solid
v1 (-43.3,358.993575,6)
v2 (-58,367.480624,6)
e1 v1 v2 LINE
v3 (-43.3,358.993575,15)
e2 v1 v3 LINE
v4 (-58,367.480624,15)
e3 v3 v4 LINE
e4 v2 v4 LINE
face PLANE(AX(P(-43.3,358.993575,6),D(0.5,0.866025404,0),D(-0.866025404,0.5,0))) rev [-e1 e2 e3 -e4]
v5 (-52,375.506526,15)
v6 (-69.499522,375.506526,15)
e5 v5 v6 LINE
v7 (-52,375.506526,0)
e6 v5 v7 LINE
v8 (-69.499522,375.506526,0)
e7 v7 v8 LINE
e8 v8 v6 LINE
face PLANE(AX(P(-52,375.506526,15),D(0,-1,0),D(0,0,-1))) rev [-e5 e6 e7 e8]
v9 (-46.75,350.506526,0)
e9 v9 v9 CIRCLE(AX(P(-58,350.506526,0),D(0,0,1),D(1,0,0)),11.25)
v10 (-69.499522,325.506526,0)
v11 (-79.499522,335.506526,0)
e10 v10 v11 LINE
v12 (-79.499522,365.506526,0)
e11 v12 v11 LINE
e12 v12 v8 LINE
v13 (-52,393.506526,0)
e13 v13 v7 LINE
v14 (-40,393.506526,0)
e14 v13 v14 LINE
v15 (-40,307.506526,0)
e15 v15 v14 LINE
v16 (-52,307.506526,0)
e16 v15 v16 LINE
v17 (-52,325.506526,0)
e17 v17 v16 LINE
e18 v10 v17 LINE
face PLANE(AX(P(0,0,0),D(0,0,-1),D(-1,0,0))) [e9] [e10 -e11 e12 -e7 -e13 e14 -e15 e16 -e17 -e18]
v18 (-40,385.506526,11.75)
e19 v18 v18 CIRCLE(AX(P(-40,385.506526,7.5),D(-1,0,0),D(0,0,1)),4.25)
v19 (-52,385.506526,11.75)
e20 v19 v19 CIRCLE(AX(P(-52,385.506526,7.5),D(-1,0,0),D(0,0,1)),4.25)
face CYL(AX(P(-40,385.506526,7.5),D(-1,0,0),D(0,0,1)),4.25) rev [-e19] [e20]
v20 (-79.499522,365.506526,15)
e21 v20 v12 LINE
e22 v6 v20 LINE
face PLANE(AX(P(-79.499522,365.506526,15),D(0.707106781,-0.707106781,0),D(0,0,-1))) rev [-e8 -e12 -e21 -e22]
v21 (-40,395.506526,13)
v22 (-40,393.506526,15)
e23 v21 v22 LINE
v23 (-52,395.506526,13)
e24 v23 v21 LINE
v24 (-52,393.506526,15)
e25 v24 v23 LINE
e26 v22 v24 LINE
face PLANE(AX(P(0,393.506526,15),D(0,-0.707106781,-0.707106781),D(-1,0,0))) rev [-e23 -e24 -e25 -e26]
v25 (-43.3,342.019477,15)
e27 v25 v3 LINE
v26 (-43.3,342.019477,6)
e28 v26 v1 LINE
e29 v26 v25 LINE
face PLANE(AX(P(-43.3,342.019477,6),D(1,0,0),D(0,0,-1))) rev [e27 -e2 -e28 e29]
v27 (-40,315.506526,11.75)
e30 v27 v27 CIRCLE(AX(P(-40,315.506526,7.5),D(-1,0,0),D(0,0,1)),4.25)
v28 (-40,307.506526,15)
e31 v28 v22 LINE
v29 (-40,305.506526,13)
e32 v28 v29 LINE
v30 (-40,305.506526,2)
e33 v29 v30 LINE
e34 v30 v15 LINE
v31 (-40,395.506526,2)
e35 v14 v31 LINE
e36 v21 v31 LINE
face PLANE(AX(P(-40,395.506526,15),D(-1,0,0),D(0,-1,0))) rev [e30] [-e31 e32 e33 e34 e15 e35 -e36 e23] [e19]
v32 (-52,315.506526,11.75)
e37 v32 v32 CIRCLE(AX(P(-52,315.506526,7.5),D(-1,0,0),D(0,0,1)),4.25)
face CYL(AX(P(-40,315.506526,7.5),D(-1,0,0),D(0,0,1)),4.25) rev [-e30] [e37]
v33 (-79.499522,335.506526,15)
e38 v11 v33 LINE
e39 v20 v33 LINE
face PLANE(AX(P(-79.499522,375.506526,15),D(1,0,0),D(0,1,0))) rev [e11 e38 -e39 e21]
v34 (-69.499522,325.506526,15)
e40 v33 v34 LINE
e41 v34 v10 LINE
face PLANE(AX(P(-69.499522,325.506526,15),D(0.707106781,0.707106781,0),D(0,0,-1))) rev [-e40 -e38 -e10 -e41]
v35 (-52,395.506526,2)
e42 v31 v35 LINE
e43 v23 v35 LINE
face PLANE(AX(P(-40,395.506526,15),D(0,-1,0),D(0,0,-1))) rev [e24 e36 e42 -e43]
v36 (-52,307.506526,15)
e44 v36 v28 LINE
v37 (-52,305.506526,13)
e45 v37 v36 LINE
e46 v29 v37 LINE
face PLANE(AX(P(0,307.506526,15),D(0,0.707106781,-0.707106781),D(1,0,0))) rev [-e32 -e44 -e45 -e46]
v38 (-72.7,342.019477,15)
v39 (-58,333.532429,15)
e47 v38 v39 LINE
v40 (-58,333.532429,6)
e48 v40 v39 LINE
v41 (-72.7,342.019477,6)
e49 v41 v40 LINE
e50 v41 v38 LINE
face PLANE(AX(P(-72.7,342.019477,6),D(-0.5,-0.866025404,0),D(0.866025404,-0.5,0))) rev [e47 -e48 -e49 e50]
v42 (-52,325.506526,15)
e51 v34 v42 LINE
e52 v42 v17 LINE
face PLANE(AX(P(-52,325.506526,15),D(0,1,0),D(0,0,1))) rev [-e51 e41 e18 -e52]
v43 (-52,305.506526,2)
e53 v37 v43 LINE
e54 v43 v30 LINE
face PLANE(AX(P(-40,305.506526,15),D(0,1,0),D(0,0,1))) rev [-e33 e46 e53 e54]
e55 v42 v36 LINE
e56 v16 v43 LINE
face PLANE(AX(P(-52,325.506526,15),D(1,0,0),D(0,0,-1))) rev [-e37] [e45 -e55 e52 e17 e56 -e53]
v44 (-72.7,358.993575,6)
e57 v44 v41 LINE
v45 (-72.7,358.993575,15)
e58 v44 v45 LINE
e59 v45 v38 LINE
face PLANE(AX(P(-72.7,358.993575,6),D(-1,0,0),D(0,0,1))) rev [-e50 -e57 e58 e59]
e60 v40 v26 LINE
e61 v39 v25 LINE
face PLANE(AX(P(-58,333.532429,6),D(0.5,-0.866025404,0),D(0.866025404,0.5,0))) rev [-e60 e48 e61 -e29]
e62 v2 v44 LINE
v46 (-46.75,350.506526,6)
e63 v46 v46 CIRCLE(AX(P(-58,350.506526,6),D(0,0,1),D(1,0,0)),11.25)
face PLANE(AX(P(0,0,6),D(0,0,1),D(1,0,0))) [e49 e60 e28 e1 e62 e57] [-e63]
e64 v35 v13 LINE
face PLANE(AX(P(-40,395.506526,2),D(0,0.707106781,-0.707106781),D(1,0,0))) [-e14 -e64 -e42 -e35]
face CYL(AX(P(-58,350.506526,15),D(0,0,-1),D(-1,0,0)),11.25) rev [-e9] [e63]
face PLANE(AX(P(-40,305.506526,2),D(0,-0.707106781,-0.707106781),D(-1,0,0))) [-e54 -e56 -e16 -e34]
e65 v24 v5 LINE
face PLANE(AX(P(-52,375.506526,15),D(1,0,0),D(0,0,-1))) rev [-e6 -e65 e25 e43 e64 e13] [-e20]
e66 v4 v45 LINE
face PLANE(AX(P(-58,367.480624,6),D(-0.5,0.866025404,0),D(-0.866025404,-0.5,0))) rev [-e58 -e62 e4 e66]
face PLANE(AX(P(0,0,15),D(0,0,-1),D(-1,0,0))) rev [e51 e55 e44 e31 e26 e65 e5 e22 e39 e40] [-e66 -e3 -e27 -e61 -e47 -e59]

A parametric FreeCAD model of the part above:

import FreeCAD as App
import Part
import Sketcher
Q = App.Units.Quantity


def edges_at(feature, points):
    """Names of the edges that pass closest to the given points."""
    edges = feature.Shape.Edges
    near = lambda p: min(range(len(edges)), key=lambda i: edges[i].distToShape(Part.Vertex(*p))[0])
    return sorted({f"Edge{near(p) + 1}" for p in points})

doc = App.newDocument("Part")
params = doc.addObject("Spreadsheet::Sheet", "Params")
for row, (alias, value) in enumerate([
    ("sketch1_diameter", "22.5 mm"),
    ("sketch1_width", "12 mm"),
    ("sketch1_height", "50 mm"),
    ("sketch1_height2", "20 mm"),
    ("pad1_length", "15 mm"),
    ("chamfer_size", "10 mm"),
    ("sketch2_diameter", "8.5 mm"),
    ("pocket2_length", "9 mm"),
    ("chamfer2_size", "2 mm"),
], start=1):
    params.set(f"A{row}", alias)
    params.set(f"B{row}", "=" + value)
    params.setAlias(f"B{row}", alias)

body = doc.addObject("PartDesign::Body", "Body")

sketch1 = body.newObject("Sketcher::SketchObject", "Sketch")
sketch1.AttachmentSupport = (doc.getObject("XY_Plane"), [""])
sketch1.MapMode = "FlatFace"
sketch1.addGeometry(Part.LineSegment(App.Vector(-52, 376, 0), App.Vector(-79, 376, 0)), False)
sketch1.addGeometry(Part.LineSegment(App.Vector(-79, 376, 0), App.Vector(-79, 326, 0)), False)
sketch1.addGeometry(Part.LineSegment(App.Vector(-79, 326, 0), App.Vector(-52, 326, 0)), False)
sketch1.addGeometry(Part.LineSegment(App.Vector(-52, 326, 0), App.Vector(-52, 306, 0)), False)
sketch1.addGeometry(Part.LineSegment(App.Vector(-52, 306, 0), App.Vector(-40, 306, 0)), False)
sketch1.addGeometry(Part.LineSegment(App.Vector(-40, 306, 0), App.Vector(-40, 396, 0)), False)
sketch1.addGeometry(Part.LineSegment(App.Vector(-40, 396, 0), App.Vector(-52, 396, 0)), False)
sketch1.addGeometry(Part.LineSegment(App.Vector(-52, 396, 0), App.Vector(-52, 376, 0)), False)
sketch1.addGeometry(Part.Circle(App.Vector(-58, 351, 0), App.Vector(0, 0, 1), 11), False)
sketch1.addConstraint(Sketcher.Constraint("Coincident", 0, 2, 1, 1))
sketch1.addConstraint(Sketcher.Constraint("Coincident", 1, 2, 2, 1))
sketch1.addConstraint(Sketcher.Constraint("Coincident", 2, 2, 3, 1))
sketch1.addConstraint(Sketcher.Constraint("Coincident", 3, 2, 4, 1))
sketch1.addConstraint(Sketcher.Constraint("Coincident", 4, 2, 5, 1))
sketch1.addConstraint(Sketcher.Constraint("Coincident", 5, 2, 6, 1))
sketch1.addConstraint(Sketcher.Constraint("Coincident", 6, 2, 7, 1))
sketch1.addConstraint(Sketcher.Constraint("Coincident", 7, 2, 0, 1))
sketch1.addConstraint(Sketcher.Constraint("Horizontal", 0))
sketch1.addConstraint(Sketcher.Constraint("Vertical", 1))
sketch1.addConstraint(Sketcher.Constraint("Horizontal", 2))
sketch1.addConstraint(Sketcher.Constraint("Vertical", 3))
sketch1.addConstraint(Sketcher.Constraint("Horizontal", 4))
sketch1.addConstraint(Sketcher.Constraint("Vertical", 5))
sketch1.addConstraint(Sketcher.Constraint("Horizontal", 6))
sketch1.addConstraint(Sketcher.Constraint("Vertical", 7))
sketch1.addConstraint(Sketcher.Constraint("Vertical", 3, 2, 6, 2))
sketch1.addConstraint(Sketcher.Constraint("Equal", 3, 7))
sketch1.addConstraint(Sketcher.Constraint("Diameter", 8, Q("22.5 mm")))
sketch1.addConstraint(Sketcher.Constraint("DistanceX", 4, 1, 4, 2, Q("12 mm")))
sketch1.addConstraint(Sketcher.Constraint("DistanceY", 1, 2, 1, 1, Q("50 mm")))
sketch1.addConstraint(Sketcher.Constraint("DistanceY", 3, 2, 3, 1, Q("20 mm")))
sketch1.addConstraint(Sketcher.Constraint("DistanceX", 8, 3, -1, 1, Q("58 mm")))
sketch1.addConstraint(Sketcher.Constraint("DistanceX", 2, 2, -1, 1, Q("52 mm")))
sketch1.addConstraint(Sketcher.Constraint("DistanceY", 8, 3, 0, 2, Q("25 mm")))
sketch1.addConstraint(Sketcher.Constraint("DistanceX", 0, 2, 0, 1, Q("27.499522 mm")))
sketch1.addConstraint(Sketcher.Constraint("DistanceY", -1, 1, 8, 3, Q("350.506526 mm")))
sketch1.setExpression("Constraints[18]", "Params.sketch1_diameter")
sketch1.setExpression("Constraints[19]", "Params.sketch1_width")
sketch1.setExpression("Constraints[20]", "Params.sketch1_height")
sketch1.setExpression("Constraints[21]", "Params.sketch1_height2")
pad1 = body.newObject("PartDesign::Pad", "Pad")
pad1.Profile = sketch1
pad1.setExpression("Length", "Params.pad1_length")
doc.recompute()

chamfer = body.newObject("PartDesign::Chamfer", "Chamfer")
chamfer.Base = (pad1, edges_at(pad1, [(-79.5, 375.507, 7.5), (-79.5, 325.507, 7.5)]))
chamfer.setExpression("Size", "Params.chamfer_size")

sketch2 = body.newObject("Sketcher::SketchObject", "Sketch001")
sketch2.AttachmentSupport = (doc.getObject("YZ_Plane"), [""])
sketch2.MapMode = "FlatFace"
sketch2.AttachmentOffset = App.Placement(App.Vector(0, 0, -52), App.Rotation())
sketch2.addGeometry(Part.Circle(App.Vector(385.5, 7.5, 0), App.Vector(0, 0, 1), 4.2), False)
sketch2.addGeometry(Part.Circle(App.Vector(315.5, 7.5, 0), App.Vector(0, 0, 1), 4.2), False)
sketch2.addConstraint(Sketcher.Constraint("Equal", 0, 1))
sketch2.addConstraint(Sketcher.Constraint("Horizontal", 0, 3, 1, 3))
sketch2.addConstraint(Sketcher.Constraint("Diameter", 0, Q("8.5 mm")))
sketch2.addConstraint(Sketcher.Constraint("DistanceX", 1, 3, 0, 3, Q("70 mm")))
sketch2.addConstraint(Sketcher.Constraint("DistanceY", -1, 1, 0, 3, Q("7.5 mm")))
sketch2.addConstraint(Sketcher.Constraint("DistanceX", -1, 1, 0, 3, Q("385.506526 mm")))
sketch2.setExpression("Constraints[2]", "Params.sketch2_diameter")
pocket1 = body.newObject("PartDesign::Pocket", "Pocket")
pocket1.Profile = sketch2
pocket1.Type = "ThroughAll"
pocket1.Reversed = True

sketch3 = body.newObject("Sketcher::SketchObject", "Sketch002")
sketch3.AttachmentSupport = (doc.getObject("XY_Plane"), [""])
sketch3.MapMode = "FlatFace"
sketch3.AttachmentOffset = App.Placement(App.Vector(0, 0, 15), App.Rotation())
sketch3.addGeometry(Part.LineSegment(App.Vector(-58, 367, 0), App.Vector(-73, 359, 0)), False)
sketch3.addGeometry(Part.LineSegment(App.Vector(-73, 359, 0), App.Vector(-73, 342, 0)), False)
sketch3.addGeometry(Part.LineSegment(App.Vector(-73, 342, 0), App.Vector(-58, 334, 0)), False)
sketch3.addGeometry(Part.LineSegment(App.Vector(-58, 334, 0), App.Vector(-43, 342, 0)), False)
sketch3.addGeometry(Part.LineSegment(App.Vector(-43, 342, 0), App.Vector(-43, 359, 0)), False)
sketch3.addGeometry(Part.LineSegment(App.Vector(-43, 359, 0), App.Vector(-58, 367, 0)), False)
sketch3.addConstraint(Sketcher.Constraint("Coincident", 0, 2, 1, 1))
sketch3.addConstraint(Sketcher.Constraint("Coincident", 1, 2, 2, 1))
sketch3.addConstraint(Sketcher.Constraint("Coincident", 2, 2, 3, 1))
sketch3.addConstraint(Sketcher.Constraint("Coincident", 3, 2, 4, 1))
sketch3.addConstraint(Sketcher.Constraint("Coincident", 4, 2, 5, 1))
sketch3.addConstraint(Sketcher.Constraint("Coincident", 5, 2, 0, 1))
sketch3.addConstraint(Sketcher.Constraint("Vertical", 1))
sketch3.addConstraint(Sketcher.Constraint("Vertical", 4))
sketch3.addConstraint(Sketcher.Constraint("Parallel", 0, 3))
sketch3.addConstraint(Sketcher.Constraint("Parallel", 2, 5))
sketch3.addConstraint(Sketcher.Constraint("Horizontal", 1, 2, 3, 2))
sketch3.addConstraint(Sketcher.Constraint("Horizontal", 0, 2, 4, 2))
sketch3.addConstraint(Sketcher.Constraint("Vertical", 2, 2, 5, 2))
sketch3.addConstraint(Sketcher.Constraint("Angle", 0, Q("-150 deg")))
sketch3.addConstraint(Sketcher.Constraint("DistanceX", 2, 2, -1, 1, Q("58 mm")))
sketch3.addConstraint(Sketcher.Constraint("DistanceX", 0, 2, -1, 1, Q("72.7 mm")))
sketch3.addConstraint(Sketcher.Constraint("DistanceY", 1, 2, 1, 1, Q("16.974098 mm")))
sketch3.addConstraint(Sketcher.Constraint("DistanceY", -1, 1, 2, 2, Q("333.532429 mm")))
pocket2 = body.newObject("PartDesign::Pocket", "Pocket001")
pocket2.Profile = sketch3
pocket2.setExpression("Length", "Params.pocket2_length")
doc.recompute()

chamfer2 = body.newObject("PartDesign::Chamfer", "Chamfer001")
chamfer2.Base = (pocket2, edges_at(pocket2, [
    (-46, 305.507, 15),
    (-46, 395.507, 15),
    (-46, 395.507, 0),
    (-46, 305.507, 0),
]))
chamfer2.setExpression("Size", "Params.chamfer2_size")

doc.recompute()
